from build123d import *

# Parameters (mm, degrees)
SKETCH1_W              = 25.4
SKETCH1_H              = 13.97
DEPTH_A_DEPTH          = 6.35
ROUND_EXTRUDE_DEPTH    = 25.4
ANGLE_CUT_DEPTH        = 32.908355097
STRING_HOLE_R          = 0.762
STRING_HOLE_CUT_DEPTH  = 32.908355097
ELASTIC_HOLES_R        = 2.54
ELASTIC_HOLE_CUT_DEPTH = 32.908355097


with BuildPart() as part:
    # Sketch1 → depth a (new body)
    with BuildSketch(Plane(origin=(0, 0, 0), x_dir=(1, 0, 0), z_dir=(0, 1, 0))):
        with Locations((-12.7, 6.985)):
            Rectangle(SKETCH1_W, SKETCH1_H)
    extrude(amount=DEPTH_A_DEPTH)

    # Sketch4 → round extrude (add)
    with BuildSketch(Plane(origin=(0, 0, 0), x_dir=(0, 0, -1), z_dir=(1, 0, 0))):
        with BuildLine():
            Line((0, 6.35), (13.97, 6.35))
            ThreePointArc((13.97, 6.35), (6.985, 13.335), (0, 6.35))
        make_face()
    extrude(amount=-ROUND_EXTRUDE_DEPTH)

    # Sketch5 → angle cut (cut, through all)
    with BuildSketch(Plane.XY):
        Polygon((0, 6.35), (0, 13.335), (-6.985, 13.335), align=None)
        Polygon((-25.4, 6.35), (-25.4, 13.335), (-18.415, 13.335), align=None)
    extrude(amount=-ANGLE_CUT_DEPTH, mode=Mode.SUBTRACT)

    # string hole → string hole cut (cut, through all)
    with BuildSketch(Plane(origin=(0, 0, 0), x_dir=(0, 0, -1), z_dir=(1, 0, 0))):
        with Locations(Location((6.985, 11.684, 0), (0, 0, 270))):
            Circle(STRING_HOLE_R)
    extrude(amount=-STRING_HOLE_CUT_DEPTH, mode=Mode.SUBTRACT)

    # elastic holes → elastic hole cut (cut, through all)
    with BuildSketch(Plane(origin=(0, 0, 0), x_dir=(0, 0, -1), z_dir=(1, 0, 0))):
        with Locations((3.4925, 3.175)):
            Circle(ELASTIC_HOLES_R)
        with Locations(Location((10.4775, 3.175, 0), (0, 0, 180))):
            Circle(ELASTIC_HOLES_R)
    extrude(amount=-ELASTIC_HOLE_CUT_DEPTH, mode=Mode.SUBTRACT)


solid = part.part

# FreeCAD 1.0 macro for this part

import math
import FreeCAD as App
import Part
import Sketcher

V = App.Vector
Q = App.Units.Quantity

doc = App.newDocument("Part")
body = doc.addObject("PartDesign::Body", "Body")

sketch1 = body.newObject("Sketcher::SketchObject", "Sketch")
sketch1.AttachmentSupport = (doc.getObject("XZ_Plane"), [""])
sketch1.MapMode = "FlatFace"
sketch1.addGeometry([
    Part.LineSegment(V(-25, -14, 0), V(-25, 0, 0)),
    Part.LineSegment(V(-25, 0, 0), V(0, 0, 0)),
    Part.LineSegment(V(0, 0, 0), V(0, -14, 0)),
    Part.LineSegment(V(0, -14, 0), V(-25, -14, 0)),
], False)
sketch1.addConstraint([
    Sketcher.Constraint("Coincident", 0, 2, 1, 1),
    Sketcher.Constraint("Coincident", 1, 2, 2, 1),
    Sketcher.Constraint("Coincident", 2, 2, 3, 1),
    Sketcher.Constraint("Coincident", 3, 2, 0, 1),
    Sketcher.Constraint("Vertical", 0),
    Sketcher.Constraint("Horizontal", 1),
    Sketcher.Constraint("Vertical", 2),
    Sketcher.Constraint("Horizontal", 3),
    Sketcher.Constraint("Coincident", 1, 2, -1, 1),
    Sketcher.Constraint("DistanceX", 1, 1, 1, 2, Q("1 in")),
    Sketcher.Constraint("DistanceY", 0, 1, 0, 2, Q("0.55 in")),
])
pad1 = body.newObject("PartDesign::Pad", "Pad")
pad1.Profile = sketch1
pad1.Length = Q("0.25 in")
pad1.Reversed = True

sketch2 = body.newObject("Sketcher::SketchObject", "Sketch001")
sketch2.AttachmentSupport = (doc.getObject("YZ_Plane"), [""])
sketch2.MapMode = "FlatFace"
sketch2.addGeometry([
    Part.LineSegment(V(6, 0, 0), V(6, -14, 0)),
    Part.ArcOfCircle(Part.Circle(V(6, -7, 0), V(0, 0, 1), 7), math.radians(-90), math.radians(90)),
], False)
sketch2.addConstraint([
    Sketcher.Constraint("Coincident", 0, 1, 1, 2),
    Sketcher.Constraint("Coincident", 1, 1, 0, 2),
    Sketcher.Constraint("Vertical", 0),
    Sketcher.Constraint("PointOnObject", 0, 1, -1),
    Sketcher.Constraint("Vertical", 1, 3, 0, 1),
    Sketcher.Constraint("Radius", 1, Q("0.275 in")),
    Sketcher.Constraint("DistanceX", -1, 1, 1, 3, Q("0.25 in")),
])
pad2 = body.newObject("PartDesign::Pad", "Pad001")
pad2.Profile = sketch2
pad2.Length = Q("1 in")
pad2.Reversed = True

sketch3 = body.newObject("Sketcher::SketchObject", "Sketch002")
sketch3.AttachmentSupport = (doc.getObject("XY_Plane"), [""])
sketch3.MapMode = "FlatFace"
sketch3.addGeometry([
    Part.LineSegment(V(0, 6, 0), V(0, 13, 0)),
    Part.LineSegment(V(0, 13, 0), V(-7, 13, 0)),
    Part.LineSegment(V(-7, 13, 0), V(0, 6, 0)),
    Part.LineSegment(V(-25, 13, 0), V(-25, 6, 0)),
    Part.LineSegment(V(-25, 6, 0), V(-18, 13, 0)),
    Part.LineSegment(V(-18, 13, 0), V(-25, 13, 0)),
], False)
sketch3.addConstraint([
    Sketcher.Constraint("Coincident", 0, 2, 1, 1),
    Sketcher.Constraint("Coincident", 1, 2, 2, 1),
    Sketcher.Constraint("Coincident", 2, 2, 0, 1),
    Sketcher.Constraint("Coincident", 3, 2, 4, 1),
    Sketcher.Constraint("Coincident", 4, 2, 5, 1),
    Sketcher.Constraint("Coincident", 5, 2, 3, 1),
    Sketcher.Constraint("Vertical", 0),
    Sketcher.Constraint("Horizontal", 1),
    Sketcher.Constraint("Vertical", 3),
    Sketcher.Constraint("Horizontal", 5),
    Sketcher.Constraint("PointOnObject", 0, 2, -2),
    Sketcher.Constraint("Perpendicular", 2, 4),
    Sketcher.Constraint("Horizontal", 2, 2, 3, 2),
    Sketcher.Constraint("Horizontal", 1, 2, 4, 2),
    Sketcher.Constraint("Equal", 1, 5),
    Sketcher.Constraint("DistanceX", 3, 2, -1, 1, Q("1 in")),
    Sketcher.Constraint("DistanceX", 1, 2, 1, 1, Q("0.275 in")),
    Sketcher.Constraint("DistanceY", -1, 1, 2, 2, Q("0.25 in")),
])
pocket1 = body.newObject("PartDesign::Pocket", "Pocket")
pocket1.Profile = sketch3
pocket1.Type = "ThroughAll"

sketch4 = body.newObject("Sketcher::SketchObject", "Sketch003")
sketch4.AttachmentSupport = (doc.getObject("YZ_Plane"), [""])
sketch4.MapMode = "FlatFace"
sketch4.addGeometry(Part.Circle(V(11.7, -7, 0), V(0, 0, 1), 0.8), False)
sketch4.addConstraint([
    Sketcher.Constraint("Diameter", 0, Q("0.06 in")),
    Sketcher.Constraint("DistanceX", -1, 1, 0, 3, Q("0.46 in")),
    Sketcher.Constraint("DistanceY", 0, 3, -1, 1, Q("0.275 in")),
])
pocket2 = body.newObject("PartDesign::Pocket", "Pocket001")
pocket2.Profile = sketch4
pocket2.Type = "ThroughAll"

sketch5 = body.newObject("Sketcher::SketchObject", "Sketch004")
sketch5.AttachmentSupport = (doc.getObject("YZ_Plane"), [""])
sketch5.MapMode = "FlatFace"
sketch5.addGeometry([
    Part.Circle(V(3.2, -3.5, 0), V(0, 0, 1), 2.5),
    Part.Circle(V(3.2, -10.5, 0), V(0, 0, 1), 2.5),
], False)
sketch5.addConstraint([
    Sketcher.Constraint("Equal", 0, 1),
    Sketcher.Constraint("Vertical", 0, 3, 1, 3),
    Sketcher.Constraint("Diameter", 0, Q("0.2 in")),
    Sketcher.Constraint("DistanceX", -1, 1, 0, 3, Q("0.125 in")),
    Sketcher.Constraint("DistanceY", 1, 3, 0, 3, Q("0.275 in")),
    Sketcher.Constraint("DistanceY", 0, 3, -1, 1, Q("0.1375 in")),
])
pocket3 = body.newObject("PartDesign::Pocket", "Pocket002")
pocket3.Profile = sketch5
pocket3.Type = "ThroughAll"

doc.recompute()
